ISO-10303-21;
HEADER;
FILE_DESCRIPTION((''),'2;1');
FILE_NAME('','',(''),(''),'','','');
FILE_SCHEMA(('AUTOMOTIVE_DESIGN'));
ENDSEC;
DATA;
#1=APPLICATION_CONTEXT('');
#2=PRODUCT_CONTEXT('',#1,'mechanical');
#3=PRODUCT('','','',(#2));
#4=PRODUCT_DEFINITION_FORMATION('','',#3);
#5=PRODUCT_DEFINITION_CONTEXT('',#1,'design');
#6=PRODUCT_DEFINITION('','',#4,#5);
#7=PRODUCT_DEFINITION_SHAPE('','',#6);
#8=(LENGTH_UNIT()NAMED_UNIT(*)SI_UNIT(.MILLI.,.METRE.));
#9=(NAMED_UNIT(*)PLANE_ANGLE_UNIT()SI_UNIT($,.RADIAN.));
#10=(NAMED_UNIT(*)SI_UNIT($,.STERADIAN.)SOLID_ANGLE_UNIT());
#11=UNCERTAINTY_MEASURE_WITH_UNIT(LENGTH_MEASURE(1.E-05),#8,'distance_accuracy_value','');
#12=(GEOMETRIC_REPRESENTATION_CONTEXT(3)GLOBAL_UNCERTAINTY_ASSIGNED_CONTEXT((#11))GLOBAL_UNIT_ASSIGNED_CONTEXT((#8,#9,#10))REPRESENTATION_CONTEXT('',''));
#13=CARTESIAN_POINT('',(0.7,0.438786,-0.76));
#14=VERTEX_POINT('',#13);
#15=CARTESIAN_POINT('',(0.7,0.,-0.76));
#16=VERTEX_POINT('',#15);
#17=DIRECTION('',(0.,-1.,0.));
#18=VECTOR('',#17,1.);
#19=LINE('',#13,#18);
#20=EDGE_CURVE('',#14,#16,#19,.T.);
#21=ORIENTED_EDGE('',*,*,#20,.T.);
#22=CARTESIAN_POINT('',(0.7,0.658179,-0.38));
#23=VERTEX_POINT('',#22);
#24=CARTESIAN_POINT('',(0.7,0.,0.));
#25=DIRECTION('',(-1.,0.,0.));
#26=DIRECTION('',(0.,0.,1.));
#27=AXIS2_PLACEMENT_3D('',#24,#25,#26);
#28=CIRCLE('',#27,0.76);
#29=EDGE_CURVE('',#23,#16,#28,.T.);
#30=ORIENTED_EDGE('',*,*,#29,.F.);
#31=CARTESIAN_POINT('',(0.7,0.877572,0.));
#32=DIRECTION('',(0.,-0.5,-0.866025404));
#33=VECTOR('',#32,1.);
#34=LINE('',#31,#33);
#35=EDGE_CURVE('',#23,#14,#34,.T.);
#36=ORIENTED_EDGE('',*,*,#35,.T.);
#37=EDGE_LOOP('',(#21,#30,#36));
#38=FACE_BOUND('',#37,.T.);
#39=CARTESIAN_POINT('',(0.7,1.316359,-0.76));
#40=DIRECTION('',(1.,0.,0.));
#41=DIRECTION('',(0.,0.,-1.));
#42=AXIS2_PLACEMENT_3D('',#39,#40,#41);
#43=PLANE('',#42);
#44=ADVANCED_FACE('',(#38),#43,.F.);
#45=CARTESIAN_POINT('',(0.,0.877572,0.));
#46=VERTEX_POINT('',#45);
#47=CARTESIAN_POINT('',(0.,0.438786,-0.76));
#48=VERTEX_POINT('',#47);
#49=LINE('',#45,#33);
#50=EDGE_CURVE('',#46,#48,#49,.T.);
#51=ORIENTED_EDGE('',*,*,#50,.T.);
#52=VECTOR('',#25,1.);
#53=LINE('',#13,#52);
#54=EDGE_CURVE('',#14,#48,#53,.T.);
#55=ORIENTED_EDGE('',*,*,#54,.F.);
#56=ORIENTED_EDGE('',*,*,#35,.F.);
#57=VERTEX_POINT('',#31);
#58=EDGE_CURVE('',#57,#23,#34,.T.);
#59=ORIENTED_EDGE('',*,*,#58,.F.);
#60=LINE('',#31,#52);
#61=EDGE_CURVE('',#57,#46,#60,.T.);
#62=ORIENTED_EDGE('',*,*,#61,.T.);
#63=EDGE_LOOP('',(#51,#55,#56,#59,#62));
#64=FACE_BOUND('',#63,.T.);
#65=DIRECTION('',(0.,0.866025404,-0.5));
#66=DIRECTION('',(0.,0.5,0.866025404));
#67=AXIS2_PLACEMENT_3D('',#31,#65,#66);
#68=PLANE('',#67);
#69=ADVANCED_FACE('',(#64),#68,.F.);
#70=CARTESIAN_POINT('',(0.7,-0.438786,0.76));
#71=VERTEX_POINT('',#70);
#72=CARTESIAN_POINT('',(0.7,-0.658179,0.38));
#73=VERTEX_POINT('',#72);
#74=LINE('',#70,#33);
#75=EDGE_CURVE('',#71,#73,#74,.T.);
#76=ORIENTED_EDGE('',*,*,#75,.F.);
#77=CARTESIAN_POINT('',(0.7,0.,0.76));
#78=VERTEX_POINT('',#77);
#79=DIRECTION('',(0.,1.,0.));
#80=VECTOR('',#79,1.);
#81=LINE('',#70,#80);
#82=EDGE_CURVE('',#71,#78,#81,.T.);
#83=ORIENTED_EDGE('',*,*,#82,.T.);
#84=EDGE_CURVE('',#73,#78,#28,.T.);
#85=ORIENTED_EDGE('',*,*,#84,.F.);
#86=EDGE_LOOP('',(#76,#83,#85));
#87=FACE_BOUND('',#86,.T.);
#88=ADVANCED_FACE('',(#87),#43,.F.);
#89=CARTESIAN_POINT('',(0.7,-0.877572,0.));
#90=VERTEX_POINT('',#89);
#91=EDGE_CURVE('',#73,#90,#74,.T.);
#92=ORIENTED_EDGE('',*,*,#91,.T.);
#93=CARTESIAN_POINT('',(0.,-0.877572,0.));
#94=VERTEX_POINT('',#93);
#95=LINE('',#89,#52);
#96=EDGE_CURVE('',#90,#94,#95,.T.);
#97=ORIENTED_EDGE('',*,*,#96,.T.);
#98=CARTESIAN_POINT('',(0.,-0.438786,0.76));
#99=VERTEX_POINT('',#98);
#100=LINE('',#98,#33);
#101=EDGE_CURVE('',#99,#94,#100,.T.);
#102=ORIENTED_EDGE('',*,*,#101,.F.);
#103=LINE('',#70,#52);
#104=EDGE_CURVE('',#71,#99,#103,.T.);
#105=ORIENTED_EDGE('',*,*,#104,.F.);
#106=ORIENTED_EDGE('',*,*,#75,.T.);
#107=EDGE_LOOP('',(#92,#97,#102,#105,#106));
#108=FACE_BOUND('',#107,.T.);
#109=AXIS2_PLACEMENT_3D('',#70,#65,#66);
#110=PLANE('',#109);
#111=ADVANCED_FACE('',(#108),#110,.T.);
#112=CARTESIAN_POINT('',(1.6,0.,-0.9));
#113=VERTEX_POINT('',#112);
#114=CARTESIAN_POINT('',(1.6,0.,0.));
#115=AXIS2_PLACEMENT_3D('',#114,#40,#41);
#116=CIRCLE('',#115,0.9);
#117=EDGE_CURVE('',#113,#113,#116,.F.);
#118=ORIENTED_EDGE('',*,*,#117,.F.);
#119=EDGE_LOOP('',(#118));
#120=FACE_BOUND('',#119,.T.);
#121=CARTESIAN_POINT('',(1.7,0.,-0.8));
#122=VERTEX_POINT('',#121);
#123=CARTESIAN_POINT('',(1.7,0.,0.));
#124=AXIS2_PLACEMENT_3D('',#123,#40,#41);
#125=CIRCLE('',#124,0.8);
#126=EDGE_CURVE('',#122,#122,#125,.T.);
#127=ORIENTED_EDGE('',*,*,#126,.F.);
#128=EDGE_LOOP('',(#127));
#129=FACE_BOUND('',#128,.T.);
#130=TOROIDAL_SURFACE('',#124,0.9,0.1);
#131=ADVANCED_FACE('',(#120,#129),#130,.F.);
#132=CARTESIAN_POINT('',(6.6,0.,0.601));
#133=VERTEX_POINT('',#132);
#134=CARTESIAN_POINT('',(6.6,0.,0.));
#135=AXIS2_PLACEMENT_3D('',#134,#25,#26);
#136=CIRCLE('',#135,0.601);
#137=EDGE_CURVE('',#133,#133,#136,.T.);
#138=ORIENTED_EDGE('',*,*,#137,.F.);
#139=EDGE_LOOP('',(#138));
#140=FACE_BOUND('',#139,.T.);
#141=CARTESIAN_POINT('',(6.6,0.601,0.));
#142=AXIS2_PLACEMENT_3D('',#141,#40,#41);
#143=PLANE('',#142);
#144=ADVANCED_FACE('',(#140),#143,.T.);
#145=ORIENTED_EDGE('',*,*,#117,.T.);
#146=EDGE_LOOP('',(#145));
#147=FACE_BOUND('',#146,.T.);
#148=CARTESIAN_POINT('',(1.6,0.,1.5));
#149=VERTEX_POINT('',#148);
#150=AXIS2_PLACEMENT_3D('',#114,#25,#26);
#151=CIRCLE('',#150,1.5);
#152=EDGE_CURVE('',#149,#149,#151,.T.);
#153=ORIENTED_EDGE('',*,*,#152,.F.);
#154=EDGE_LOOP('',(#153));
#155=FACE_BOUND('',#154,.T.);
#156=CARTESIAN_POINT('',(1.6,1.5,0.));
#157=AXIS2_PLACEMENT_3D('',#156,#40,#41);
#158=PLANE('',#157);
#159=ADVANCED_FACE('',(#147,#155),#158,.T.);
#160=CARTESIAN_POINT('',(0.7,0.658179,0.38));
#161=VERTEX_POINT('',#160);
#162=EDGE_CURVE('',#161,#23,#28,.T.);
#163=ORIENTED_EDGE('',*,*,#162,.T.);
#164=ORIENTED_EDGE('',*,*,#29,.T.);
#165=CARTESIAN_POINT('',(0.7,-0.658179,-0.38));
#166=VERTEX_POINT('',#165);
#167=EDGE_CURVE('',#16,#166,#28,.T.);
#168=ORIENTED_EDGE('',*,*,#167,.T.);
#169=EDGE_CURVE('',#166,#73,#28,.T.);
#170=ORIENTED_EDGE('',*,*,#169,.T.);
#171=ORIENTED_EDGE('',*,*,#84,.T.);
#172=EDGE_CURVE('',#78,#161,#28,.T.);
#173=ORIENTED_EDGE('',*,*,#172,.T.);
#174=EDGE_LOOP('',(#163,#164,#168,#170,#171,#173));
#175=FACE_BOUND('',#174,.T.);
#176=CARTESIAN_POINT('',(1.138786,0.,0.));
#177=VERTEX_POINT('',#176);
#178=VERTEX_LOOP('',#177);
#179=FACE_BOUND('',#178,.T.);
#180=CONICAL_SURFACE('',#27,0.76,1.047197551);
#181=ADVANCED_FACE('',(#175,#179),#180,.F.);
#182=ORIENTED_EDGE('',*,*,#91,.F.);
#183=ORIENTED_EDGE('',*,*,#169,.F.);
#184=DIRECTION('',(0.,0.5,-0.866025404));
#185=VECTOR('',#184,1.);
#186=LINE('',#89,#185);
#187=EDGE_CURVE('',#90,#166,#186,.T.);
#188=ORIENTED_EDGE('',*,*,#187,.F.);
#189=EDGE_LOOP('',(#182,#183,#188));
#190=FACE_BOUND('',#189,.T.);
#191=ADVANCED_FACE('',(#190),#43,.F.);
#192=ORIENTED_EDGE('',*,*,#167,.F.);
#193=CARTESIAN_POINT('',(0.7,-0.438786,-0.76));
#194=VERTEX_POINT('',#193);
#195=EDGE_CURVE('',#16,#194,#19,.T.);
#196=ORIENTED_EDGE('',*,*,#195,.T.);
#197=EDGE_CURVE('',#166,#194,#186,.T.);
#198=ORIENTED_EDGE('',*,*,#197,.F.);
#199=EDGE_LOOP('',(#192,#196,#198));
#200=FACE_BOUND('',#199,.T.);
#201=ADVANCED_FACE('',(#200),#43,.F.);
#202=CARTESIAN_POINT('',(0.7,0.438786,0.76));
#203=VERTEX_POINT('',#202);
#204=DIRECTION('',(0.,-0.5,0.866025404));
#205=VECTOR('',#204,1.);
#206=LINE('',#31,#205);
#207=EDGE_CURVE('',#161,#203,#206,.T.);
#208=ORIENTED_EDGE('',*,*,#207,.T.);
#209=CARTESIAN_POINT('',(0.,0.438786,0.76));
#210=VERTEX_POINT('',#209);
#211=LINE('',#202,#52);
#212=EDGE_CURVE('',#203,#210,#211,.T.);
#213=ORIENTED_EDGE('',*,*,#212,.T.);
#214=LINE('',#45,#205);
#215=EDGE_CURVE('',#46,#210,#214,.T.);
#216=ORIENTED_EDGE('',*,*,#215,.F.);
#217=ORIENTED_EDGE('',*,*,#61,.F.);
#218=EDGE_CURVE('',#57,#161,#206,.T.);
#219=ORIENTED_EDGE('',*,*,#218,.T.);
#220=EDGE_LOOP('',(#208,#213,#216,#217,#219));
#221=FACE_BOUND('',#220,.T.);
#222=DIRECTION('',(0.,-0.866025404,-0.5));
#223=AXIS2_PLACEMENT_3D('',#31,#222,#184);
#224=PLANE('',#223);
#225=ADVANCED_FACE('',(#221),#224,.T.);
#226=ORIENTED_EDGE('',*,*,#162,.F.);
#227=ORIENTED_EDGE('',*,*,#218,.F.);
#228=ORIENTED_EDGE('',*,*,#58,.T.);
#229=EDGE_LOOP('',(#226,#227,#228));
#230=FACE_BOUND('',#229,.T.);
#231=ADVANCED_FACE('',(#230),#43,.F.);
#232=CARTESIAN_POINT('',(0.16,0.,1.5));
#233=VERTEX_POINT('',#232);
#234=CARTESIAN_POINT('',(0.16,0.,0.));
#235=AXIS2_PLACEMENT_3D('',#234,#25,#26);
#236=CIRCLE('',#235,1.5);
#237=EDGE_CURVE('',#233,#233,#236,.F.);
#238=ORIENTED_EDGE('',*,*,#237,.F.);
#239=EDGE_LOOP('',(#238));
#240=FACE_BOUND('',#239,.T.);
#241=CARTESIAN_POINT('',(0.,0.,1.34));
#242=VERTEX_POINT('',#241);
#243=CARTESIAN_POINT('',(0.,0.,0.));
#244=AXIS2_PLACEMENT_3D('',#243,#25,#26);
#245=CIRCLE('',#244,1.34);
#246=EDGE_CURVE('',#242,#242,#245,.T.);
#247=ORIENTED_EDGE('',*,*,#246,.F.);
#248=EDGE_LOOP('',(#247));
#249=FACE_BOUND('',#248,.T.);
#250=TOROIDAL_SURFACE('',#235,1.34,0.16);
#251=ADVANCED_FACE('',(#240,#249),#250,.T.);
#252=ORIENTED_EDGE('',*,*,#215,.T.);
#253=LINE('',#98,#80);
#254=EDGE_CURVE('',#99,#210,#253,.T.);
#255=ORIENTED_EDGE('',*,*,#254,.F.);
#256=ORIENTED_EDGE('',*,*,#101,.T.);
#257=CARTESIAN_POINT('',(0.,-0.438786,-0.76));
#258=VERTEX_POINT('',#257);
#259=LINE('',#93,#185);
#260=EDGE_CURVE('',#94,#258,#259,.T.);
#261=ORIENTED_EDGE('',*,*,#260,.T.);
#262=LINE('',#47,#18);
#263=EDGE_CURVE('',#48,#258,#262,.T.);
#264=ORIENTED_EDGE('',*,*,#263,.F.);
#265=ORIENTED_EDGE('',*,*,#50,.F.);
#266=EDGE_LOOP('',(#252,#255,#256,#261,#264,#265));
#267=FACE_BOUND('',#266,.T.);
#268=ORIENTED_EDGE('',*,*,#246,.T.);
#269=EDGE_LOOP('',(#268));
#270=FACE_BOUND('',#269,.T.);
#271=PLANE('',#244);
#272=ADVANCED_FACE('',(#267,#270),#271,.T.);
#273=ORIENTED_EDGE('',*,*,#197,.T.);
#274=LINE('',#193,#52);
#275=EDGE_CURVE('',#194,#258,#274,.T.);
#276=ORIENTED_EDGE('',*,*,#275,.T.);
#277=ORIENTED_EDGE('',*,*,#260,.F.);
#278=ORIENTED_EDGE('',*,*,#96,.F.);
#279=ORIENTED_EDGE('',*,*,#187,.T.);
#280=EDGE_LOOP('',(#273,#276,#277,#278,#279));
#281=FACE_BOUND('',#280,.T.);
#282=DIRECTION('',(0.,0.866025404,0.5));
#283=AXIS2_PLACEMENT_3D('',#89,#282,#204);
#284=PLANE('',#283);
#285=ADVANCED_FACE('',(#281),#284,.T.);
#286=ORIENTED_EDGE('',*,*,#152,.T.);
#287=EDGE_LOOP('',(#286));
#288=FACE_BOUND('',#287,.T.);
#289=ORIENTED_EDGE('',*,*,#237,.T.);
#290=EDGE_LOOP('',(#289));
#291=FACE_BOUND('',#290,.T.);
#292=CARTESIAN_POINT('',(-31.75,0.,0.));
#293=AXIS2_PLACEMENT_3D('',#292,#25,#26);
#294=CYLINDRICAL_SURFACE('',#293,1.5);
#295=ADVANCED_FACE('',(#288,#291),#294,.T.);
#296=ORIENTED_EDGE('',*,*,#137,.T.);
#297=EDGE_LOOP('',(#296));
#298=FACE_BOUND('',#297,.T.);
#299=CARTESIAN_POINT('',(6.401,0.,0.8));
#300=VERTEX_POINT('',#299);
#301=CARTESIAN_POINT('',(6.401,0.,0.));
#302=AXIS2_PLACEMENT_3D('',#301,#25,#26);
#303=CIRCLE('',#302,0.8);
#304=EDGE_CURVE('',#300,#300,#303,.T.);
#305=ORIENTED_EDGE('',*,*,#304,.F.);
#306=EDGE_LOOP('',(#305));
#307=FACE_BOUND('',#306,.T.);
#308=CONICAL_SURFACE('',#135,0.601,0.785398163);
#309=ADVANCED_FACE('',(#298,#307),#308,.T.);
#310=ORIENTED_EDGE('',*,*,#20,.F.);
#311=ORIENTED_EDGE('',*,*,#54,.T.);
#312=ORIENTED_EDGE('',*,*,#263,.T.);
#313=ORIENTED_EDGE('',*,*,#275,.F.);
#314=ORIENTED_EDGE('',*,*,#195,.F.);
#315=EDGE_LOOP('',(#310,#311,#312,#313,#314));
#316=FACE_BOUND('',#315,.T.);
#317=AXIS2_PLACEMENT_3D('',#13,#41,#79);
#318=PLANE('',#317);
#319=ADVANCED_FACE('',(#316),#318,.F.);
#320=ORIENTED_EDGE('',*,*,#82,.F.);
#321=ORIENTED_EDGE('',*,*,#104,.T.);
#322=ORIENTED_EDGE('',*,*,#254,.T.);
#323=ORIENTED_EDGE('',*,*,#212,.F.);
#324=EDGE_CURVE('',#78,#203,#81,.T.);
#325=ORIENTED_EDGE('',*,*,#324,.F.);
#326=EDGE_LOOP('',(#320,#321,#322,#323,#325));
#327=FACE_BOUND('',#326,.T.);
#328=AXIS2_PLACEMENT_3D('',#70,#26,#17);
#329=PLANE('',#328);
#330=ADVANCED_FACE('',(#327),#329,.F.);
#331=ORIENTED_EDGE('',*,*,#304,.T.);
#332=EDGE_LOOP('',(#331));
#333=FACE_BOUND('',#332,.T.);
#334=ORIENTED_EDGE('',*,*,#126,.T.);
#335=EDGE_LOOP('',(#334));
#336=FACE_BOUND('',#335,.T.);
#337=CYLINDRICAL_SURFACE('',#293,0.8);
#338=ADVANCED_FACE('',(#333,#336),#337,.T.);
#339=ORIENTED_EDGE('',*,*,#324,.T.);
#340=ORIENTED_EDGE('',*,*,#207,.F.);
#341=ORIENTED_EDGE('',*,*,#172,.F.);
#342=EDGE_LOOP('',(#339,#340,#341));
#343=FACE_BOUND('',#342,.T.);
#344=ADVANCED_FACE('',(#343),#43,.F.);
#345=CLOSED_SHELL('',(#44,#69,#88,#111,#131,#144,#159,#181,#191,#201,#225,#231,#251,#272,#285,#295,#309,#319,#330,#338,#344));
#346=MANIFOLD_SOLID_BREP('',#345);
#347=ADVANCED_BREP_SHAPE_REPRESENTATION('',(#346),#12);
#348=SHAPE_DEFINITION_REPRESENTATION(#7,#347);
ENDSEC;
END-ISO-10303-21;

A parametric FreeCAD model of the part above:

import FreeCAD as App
import Part
import Sketcher

V = App.Vector
Q = App.Units.Quantity


def edges_at(feature, points):
    """Names of the edges that pass closest to the given points."""
    edges = feature.Shape.Edges
    near = lambda p: min(range(len(edges)), key=lambda i: edges[i].distToShape(Part.Vertex(*p))[0])
    return sorted({f"Edge{near(p) + 1}" for p in points})


def add_polygon(sketch, points):
    """Adds a closed chain of lines whose ends are joined by coincident constraints."""
    first, n = sketch.GeometryCount, len(points)
    for a, b in zip(points, points[1:] + points[:1]):
        sketch.addGeometry(Part.LineSegment(App.Vector(*a, 0), App.Vector(*b, 0)), False)
    for i in range(n):
        sketch.addConstraint(Sketcher.Constraint("Coincident", first + i, 2, first + (i + 1) % n, 1))

doc = App.newDocument("Part")
body = doc.addObject("PartDesign::Body", "Body")

sketch1 = body.newObject("Sketcher::SketchObject", "Sketch")
sketch1.AttachmentSupport = (doc.getObject("XY_Plane"), [""])
sketch1.MapMode = "FlatFace"
add_polygon(sketch1, [(0, 1.5), (0, 0), (6.6, 0), (6.6, 0.6), (6.4, 0.8), (1.6, 0.8), (1.6, 1.5)])
sketch1.addConstraint([
    Sketcher.Constraint("Vertical", 0),
    Sketcher.Constraint("Horizontal", 1),
    Sketcher.Constraint("Vertical", 2),
    Sketcher.Constraint("Horizontal", 4),
    Sketcher.Constraint("Vertical", 5),
    Sketcher.Constraint("Horizontal", 6),
    Sketcher.Constraint("Coincident", 0, 2, -1, 1),
    Sketcher.Constraint("Angle", 3, Q("135 deg")),
    Sketcher.Constraint("DistanceX", 1, 1, 1, 2, Q("6.6 mm")),
    Sketcher.Constraint("DistanceX", 6, 2, 6, 1, Q("1.6 mm")),
    Sketcher.Constraint("DistanceY", 0, 2, 0, 1, Q("1.5 mm")),
    Sketcher.Constraint("DistanceY", 5, 1, 5, 2, Q("0.7 mm")),
    Sketcher.Constraint("DistanceX", 4, 2, 4, 1, Q("4.801 mm")),
])
revolution = body.newObject("PartDesign::Revolution", "Revolution")
revolution.Profile = sketch1
revolution.ReferenceAxis = (sketch1, ["H_Axis"])
revolution.Angle = 360
doc.recompute()

fillet = body.newObject("PartDesign::Fillet", "Fillet")
fillet.Base = (revolution, edges_at(revolution, [(1.6, 0, -0.8)]))
fillet.Radius = 0.1
doc.recompute()

fillet2 = body.newObject("PartDesign::Fillet", "Fillet001")
fillet2.Base = (fillet, edges_at(fillet, [(0, 0, -1.5)]))
fillet2.Radius = 0.16

sketch2 = body.newObject("Sketcher::SketchObject", "Sketch001")
sketch2.AttachmentSupport = (doc.getObject("XY_Plane"), [""])
sketch2.MapMode = "FlatFace"
add_polygon(sketch2, [(0.7, 0.8), (0, 0.8), (0, 0), (1.1, 0)])
sketch2.addConstraint([
    Sketcher.Constraint("Horizontal", 0),
    Sketcher.Constraint("Vertical", 1),
    Sketcher.Constraint("Horizontal", 2),
    Sketcher.Constraint("Coincident", 1, 2, -1, 1),
    Sketcher.Constraint("Angle", 3, Q("120 deg")),
    Sketcher.Constraint("DistanceX", 0, 2, 0, 1, Q("0.7 mm")),
    Sketcher.Constraint("DistanceY", 1, 2, 1, 1, Q("0.76 mm")),
])
groove = body.newObject("PartDesign::Groove", "Groove")
groove.Profile = sketch2
groove.ReferenceAxis = (sketch2, ["H_Axis"])
groove.Angle = 360

sketch3 = body.newObject("Sketcher::SketchObject", "Sketch002")
sketch3.AttachmentSupport = (doc.getObject("YZ_Plane"), [""])
sketch3.MapMode = "FlatFace"
add_polygon(sketch3, [(0.9, 0), (0.4, -0.8), (-0.4, -0.8), (-0.9, 0), (-0.4, 0.8), (0.4, 0.8)])
sketch3.addConstraint([
    Sketcher.Constraint("Horizontal", 1),
    Sketcher.Constraint("Horizontal", 4),
    Sketcher.Constraint("Symmetric", 0, 2, 3, 2, -1, 1),
    Sketcher.Constraint("Symmetric", 2, 2, 5, 2, -1, 1),
    Sketcher.Constraint("PointOnObject", 2, 2, -1),
    Sketcher.Constraint("Parallel", 2, 5),
    Sketcher.Constraint("Vertical", 1, 2, 3, 2),
    Sketcher.Constraint("Angle", 0, Q("-120 deg")),
    Sketcher.Constraint("DistanceY", 0, 2, -1, 1, Q("0.76 mm")),
    Sketcher.Constraint("DistanceX", 1, 2, 1, 1, Q("0.877572 mm")),
])
pocket1 = body.newObject("PartDesign::Pocket", "Pocket")
pocket1.Profile = sketch3
pocket1.Length = 0.7
pocket1.Reversed = True

doc.recompute()
